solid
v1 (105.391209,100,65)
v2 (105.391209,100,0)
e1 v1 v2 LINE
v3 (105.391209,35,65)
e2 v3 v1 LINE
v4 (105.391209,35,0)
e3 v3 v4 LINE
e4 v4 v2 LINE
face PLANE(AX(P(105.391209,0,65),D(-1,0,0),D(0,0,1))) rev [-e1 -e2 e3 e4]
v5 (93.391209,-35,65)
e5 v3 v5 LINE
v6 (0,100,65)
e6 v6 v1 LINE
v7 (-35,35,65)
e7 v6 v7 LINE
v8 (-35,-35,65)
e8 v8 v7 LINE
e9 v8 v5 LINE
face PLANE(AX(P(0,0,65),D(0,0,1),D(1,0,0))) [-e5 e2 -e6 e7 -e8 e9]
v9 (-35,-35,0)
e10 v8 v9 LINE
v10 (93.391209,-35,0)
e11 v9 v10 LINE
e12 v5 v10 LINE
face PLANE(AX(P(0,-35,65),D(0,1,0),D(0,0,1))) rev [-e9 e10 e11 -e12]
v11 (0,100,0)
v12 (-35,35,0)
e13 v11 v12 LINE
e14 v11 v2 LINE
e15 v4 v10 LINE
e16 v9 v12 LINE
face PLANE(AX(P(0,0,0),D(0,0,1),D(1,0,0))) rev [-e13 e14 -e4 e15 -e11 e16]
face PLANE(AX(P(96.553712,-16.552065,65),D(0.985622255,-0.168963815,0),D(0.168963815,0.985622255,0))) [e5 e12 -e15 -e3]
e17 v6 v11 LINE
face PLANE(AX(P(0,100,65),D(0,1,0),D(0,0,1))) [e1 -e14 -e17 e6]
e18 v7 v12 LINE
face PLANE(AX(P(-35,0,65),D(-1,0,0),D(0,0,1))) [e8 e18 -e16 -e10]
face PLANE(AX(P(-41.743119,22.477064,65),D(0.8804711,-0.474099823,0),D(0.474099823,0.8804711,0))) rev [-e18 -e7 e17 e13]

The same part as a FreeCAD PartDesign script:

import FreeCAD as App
import Part
import Sketcher
from FreeCAD import Vector

doc = App.newDocument("Part")
body = doc.addObject("PartDesign::Body", "Body")

# Sketch on XY plane
sketch1 = body.newObject("Sketcher::SketchObject", "Sketch")
sketch1.AttachmentSupport = (doc.getObject("XY_Plane"), [""])
sketch1.MapMode = "FlatFace"
sketch1.addGeometry([
    Part.LineSegment(Vector(0, 100, 0), Vector(-35, 35, 0)),  # 0
    Part.LineSegment(Vector(-35, 35, 0), Vector(-35, -35, 0)),  # 1
    Part.LineSegment(Vector(-35, -35, 0), Vector(93.391209, -35, 0)),  # 2
    Part.LineSegment(Vector(93.391209, -35, 0), Vector(105.391209, 35, 0)),  # 3
    Part.LineSegment(Vector(105.391209, 35, 0), Vector(105.391209, 100, 0)),  # 4
    Part.LineSegment(Vector(105.391209, 100, 0), Vector(0, 100, 0)),  # 5
], False)
sketch1.addConstraint([
    Sketcher.Constraint("Coincident", 0, 2, 1, 1),
    Sketcher.Constraint("Coincident", 1, 2, 2, 1),
    Sketcher.Constraint("Coincident", 2, 2, 3, 1),
    Sketcher.Constraint("Coincident", 3, 2, 4, 1),
    Sketcher.Constraint("Coincident", 4, 2, 5, 1),
    Sketcher.Constraint("Coincident", 5, 2, 0, 1),
    Sketcher.Constraint("Vertical", 1),
    Sketcher.Constraint("Horizontal", 2),
    Sketcher.Constraint("Vertical", 4),
    Sketcher.Constraint("Horizontal", 5),
    Sketcher.Constraint("PointOnObject", 5, 2, -2),
    Sketcher.Constraint("Horizontal", 0, 2, 3, 2),
    Sketcher.Constraint("DistanceY", 1, 2, 1, 1, 70.0),
    Sketcher.Constraint("DistanceY", 4, 1, 4, 2, 65.0),
    Sketcher.Constraint("DistanceX", 0, 2, -1, 1, 35.0),
    Sketcher.Constraint("DistanceY", -1, 1, 0, 2, 35.0),
    Sketcher.Constraint("DistanceX", 2, 2, 3, 2, 12.0),
    Sketcher.Constraint("DistanceX", 2, 1, 2, 2, 128.391209),
])
pad1 = body.newObject("PartDesign::Pad", "Pad")
pad1.Profile = sketch1
pad1.Length = 65

doc.recompute()
